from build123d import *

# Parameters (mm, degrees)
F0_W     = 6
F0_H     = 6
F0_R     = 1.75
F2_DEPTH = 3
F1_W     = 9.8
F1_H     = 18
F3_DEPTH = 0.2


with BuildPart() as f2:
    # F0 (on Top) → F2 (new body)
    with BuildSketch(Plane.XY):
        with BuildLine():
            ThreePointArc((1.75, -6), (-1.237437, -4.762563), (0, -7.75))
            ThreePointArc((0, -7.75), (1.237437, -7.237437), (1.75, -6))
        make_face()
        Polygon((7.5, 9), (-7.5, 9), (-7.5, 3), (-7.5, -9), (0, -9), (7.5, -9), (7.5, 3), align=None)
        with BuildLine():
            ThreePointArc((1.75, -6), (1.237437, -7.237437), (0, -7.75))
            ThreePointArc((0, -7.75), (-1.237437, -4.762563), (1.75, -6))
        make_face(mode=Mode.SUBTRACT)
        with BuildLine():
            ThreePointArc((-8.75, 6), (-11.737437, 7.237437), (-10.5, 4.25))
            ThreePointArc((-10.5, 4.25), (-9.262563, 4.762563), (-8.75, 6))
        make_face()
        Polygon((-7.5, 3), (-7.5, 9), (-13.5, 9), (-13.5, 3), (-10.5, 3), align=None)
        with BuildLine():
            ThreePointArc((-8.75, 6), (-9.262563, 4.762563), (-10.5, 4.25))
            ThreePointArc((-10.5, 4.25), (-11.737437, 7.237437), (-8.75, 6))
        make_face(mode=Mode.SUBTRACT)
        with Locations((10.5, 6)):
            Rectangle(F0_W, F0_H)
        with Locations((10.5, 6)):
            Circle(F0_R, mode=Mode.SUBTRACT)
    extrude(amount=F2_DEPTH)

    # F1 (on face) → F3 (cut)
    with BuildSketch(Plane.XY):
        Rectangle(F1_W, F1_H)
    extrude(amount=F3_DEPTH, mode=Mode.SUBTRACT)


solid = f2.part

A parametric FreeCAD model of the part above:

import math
import FreeCAD as App
import Part
import Sketcher
from FreeCAD import Vector


def add_polygon(sketch, points):
    """Adds a closed chain of lines whose ends are joined by coincident constraints."""
    first, n = sketch.GeometryCount, len(points)
    for a, b in zip(points, points[1:] + points[:1]):
        sketch.addGeometry(Part.LineSegment(App.Vector(*a, 0), App.Vector(*b, 0)), False)
    for i in range(n):
        sketch.addConstraint(Sketcher.Constraint("Coincident", first + i, 2, first + (i + 1) % n, 1))

doc = App.newDocument("Part")
body = doc.addObject("PartDesign::Body", "Body")

# Sketch on XY plane
sketch1 = body.newObject("Sketcher::SketchObject", "Sketch")
sketch1.AttachmentSupport = (doc.getObject("XY_Plane"), [""])
sketch1.MapMode = "FlatFace"
add_polygon(sketch1, [(-13.5, 9), (-13.5, 3), (-7.5, 3), (-7.5, -9), (7.5, -9), (7.5, 3), (13.5, 3), (13.5, 9)])  # lines 0-7
sketch1.addGeometry(Part.ArcOfCircle(Part.Circle(Vector(0, -6, 0), Vector(0, 0, 1), 1.8), math.radians(0), math.radians(270)), False)  # 8
sketch1.addGeometry(Part.ArcOfCircle(Part.Circle(Vector(0, -6, 0), Vector(0, 0, 1), 1.7), math.radians(-90), math.radians(0)), False)  # 9
sketch1.addGeometry(Part.ArcOfCircle(Part.Circle(Vector(-10.5, 6, 0), Vector(0, 0, 1), 1.8), math.radians(0), math.radians(270)), False)  # 10
sketch1.addGeometry(Part.ArcOfCircle(Part.Circle(Vector(-10.5, 6, 0), Vector(0, 0, 1), 1.7), math.radians(-90), math.radians(0)), False)  # 11
sketch1.addGeometry(Part.Circle(Vector(10.5, 6, 0), Vector(0, 0, 1), 1.8), False)  # 12
sketch1.addConstraint([
    Sketcher.Constraint("Tangent", 8, 1, 9, 2),
    Sketcher.Constraint("Coincident", 9, 1, 8, 2),
    Sketcher.Constraint("Tangent", 10, 1, 11, 2),
    Sketcher.Constraint("Coincident", 11, 1, 10, 2),
    Sketcher.Constraint("Vertical", 0),
    Sketcher.Constraint("Horizontal", 1),
    Sketcher.Constraint("Vertical", 2),
    Sketcher.Constraint("Horizontal", 3),
    Sketcher.Constraint("Vertical", 4),
    Sketcher.Constraint("Horizontal", 5),
    Sketcher.Constraint("Vertical", 6),
    Sketcher.Constraint("Horizontal", 7),
    Sketcher.Constraint("Equal", 9, 10),
    Sketcher.Constraint("Equal", 11, 12),
    Sketcher.Constraint("Symmetric", 10, 3, 12, 3, -2),
    Sketcher.Constraint("Symmetric", 1, 2, 4, 2, -2),
    Sketcher.Constraint("PointOnObject", 8, 3, -2),
    Sketcher.Constraint("PointOnObject", 9, 1, -2),
    Sketcher.Constraint("Horizontal", 9, 3, 8, 1),
    Sketcher.Constraint("Horizontal", 12, 3, 10, 1),
    Sketcher.Constraint("Vertical", 10, 3, 11, 1),
    Sketcher.Constraint("Equal", 1, 5),
    Sketcher.Constraint("Equal", 5, 0),
    Sketcher.Constraint("Diameter", 12, 3.5),
    Sketcher.Constraint("DistanceX", 1, 1, 1, 2, 6.0),
    Sketcher.Constraint("DistanceX", 3, 1, 3, 2, 15.0),
    Sketcher.Constraint("DistanceY", 2, 2, 2, 1, 12.0),
    Sketcher.Constraint("DistanceY", 8, 3, -1, 1, 6.0),
    Sketcher.Constraint("DistanceY", -1, 1, 10, 3, 6.0),
    Sketcher.Constraint("DistanceY", -1, 1, 0, 2, 3.0),
    Sketcher.Constraint("DistanceX", 11, 3, 12, 3, 21.0),
])
pad1 = body.newObject("PartDesign::Pad", "Pad")
pad1.Profile = sketch1
pad1.Length = 3

# Sketch on XY plane
sketch2 = body.newObject("Sketcher::SketchObject", "Sketch001")
sketch2.AttachmentSupport = (doc.getObject("XY_Plane"), [""])
sketch2.MapMode = "FlatFace"
add_polygon(sketch2, [(-5, 9), (-5, -9), (5, -9), (5, 9)])  # lines 0-3
sketch2.addConstraint([
    Sketcher.Constraint("Vertical", 0),
    Sketcher.Constraint("Horizontal", 1),
    Sketcher.Constraint("Vertical", 2),
    Sketcher.Constraint("Horizontal", 3),
    Sketcher.Constraint("Symmetric", 0, 2, 2, 2, -1, 1),
    Sketcher.Constraint("DistanceY", 0, 2, 0, 1, 18.0),
    Sketcher.Constraint("DistanceX", 1, 1, 1, 2, 9.8),
])
pocket1 = body.newObject("PartDesign::Pocket", "Pocket")
pocket1.Profile = sketch2
pocket1.Length = 0.2
pocket1.Reversed = True

doc.recompute()
